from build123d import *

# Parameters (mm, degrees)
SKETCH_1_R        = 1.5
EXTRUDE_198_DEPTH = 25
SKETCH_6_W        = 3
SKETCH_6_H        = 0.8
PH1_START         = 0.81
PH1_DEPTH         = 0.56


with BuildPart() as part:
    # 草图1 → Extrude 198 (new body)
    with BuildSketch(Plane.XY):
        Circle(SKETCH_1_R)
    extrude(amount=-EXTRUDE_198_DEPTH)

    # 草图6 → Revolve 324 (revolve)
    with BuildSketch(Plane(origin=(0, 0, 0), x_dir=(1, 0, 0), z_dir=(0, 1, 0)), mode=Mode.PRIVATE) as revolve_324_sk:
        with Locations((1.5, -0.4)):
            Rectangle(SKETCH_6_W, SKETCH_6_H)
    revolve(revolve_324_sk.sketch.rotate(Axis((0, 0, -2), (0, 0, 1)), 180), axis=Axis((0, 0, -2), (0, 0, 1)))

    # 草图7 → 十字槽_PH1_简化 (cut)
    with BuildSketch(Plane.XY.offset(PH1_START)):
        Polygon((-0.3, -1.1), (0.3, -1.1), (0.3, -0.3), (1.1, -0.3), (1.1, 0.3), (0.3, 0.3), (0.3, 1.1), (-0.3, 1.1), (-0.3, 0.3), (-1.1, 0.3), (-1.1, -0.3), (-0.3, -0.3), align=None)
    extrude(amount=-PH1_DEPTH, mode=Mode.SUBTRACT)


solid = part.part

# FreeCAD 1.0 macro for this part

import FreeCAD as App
import Part
import Sketcher

V = App.Vector
Q = App.Units.Quantity


def add_polygon(sketch, points):
    """Adds a closed chain of lines whose ends are joined by coincident constraints."""
    first, n = sketch.GeometryCount, len(points)
    for a, b in zip(points, points[1:] + points[:1]):
        sketch.addGeometry(Part.LineSegment(App.Vector(*a, 0), App.Vector(*b, 0)), False)
    for i in range(n):
        sketch.addConstraint(Sketcher.Constraint("Coincident", first + i, 2, first + (i + 1) % n, 1))

doc = App.newDocument("Part")
body = doc.addObject("PartDesign::Body", "Body")

# Sketch on XY plane
sketch1 = doc.addObject("Sketcher::SketchObject", "Sketch")
body.addObject(sketch1)
sketch1.AttachmentSupport = (doc.XY_Plane, [""])
sketch1.MapMode = "FlatFace"
sketch1.addGeometry(Part.Circle(V(0, 0, 0), V(0, 0, 1), 1.5), False)
sketch1.addConstraint(Sketcher.Constraint("Coincident", 0, 3, -1, 1))
sketch1.addConstraint(Sketcher.Constraint("Diameter", 0, Q("3 mm")))
pad1 = doc.addObject("PartDesign::Pad", "Pad")
body.addObject(pad1)
pad1.Profile = sketch1
pad1.Length = 25
pad1.Reversed = True

# Sketch on XZ plane
sketch2 = doc.addObject("Sketcher::SketchObject", "Sketch001")
body.addObject(sketch2)
sketch2.AttachmentSupport = (doc.XZ_Plane, [""])
sketch2.MapMode = "FlatFace"
add_polygon(sketch2, [(0, 0), (0, 0.8), (3, 0.8), (3, 0)])  # lines 0-3
sketch2.addConstraint(Sketcher.Constraint("Vertical", 0))
sketch2.addConstraint(Sketcher.Constraint("Horizontal", 1))
sketch2.addConstraint(Sketcher.Constraint("Vertical", 2))
sketch2.addConstraint(Sketcher.Constraint("Horizontal", 3))
sketch2.addConstraint(Sketcher.Constraint("Coincident", 3, 2, -1, 1))
sketch2.addConstraint(Sketcher.Constraint("DistanceX", 1, 1, 1, 2, Q("3 mm")))
sketch2.addConstraint(Sketcher.Constraint("DistanceY", 0, 1, 0, 2, Q("0.8 mm")))
revolution = doc.addObject("PartDesign::Revolution", "Revolution")
body.addObject(revolution)
revolution.Profile = sketch2
revolution.ReferenceAxis = (sketch2, ["V_Axis"])
revolution.Angle = 360

# Sketch on XY plane
sketch3 = doc.addObject("Sketcher::SketchObject", "Sketch002")
body.addObject(sketch3)
sketch3.AttachmentSupport = (doc.XY_Plane, [""])
sketch3.MapMode = "FlatFace"
sketch3.AttachmentOffset = App.Placement(V(0, 0, 0.81), App.Rotation())
add_polygon(sketch3, [(-0.3, -1.1), (0.3, -1.1), (0.3, -0.3), (1.1, -0.3), (1.1, 0.3), (0.3, 0.3), (0.3, 1.1), (-0.3, 1.1), (-0.3, 0.3), (-1.1, 0.3), (-1.1, -0.3), (-0.3, -0.3)])  # lines 0-11
sketch3.addConstraint(Sketcher.Constraint("Horizontal", 0))
sketch3.addConstraint(Sketcher.Constraint("Vertical", 1))
sketch3.addConstraint(Sketcher.Constraint("Horizontal", 2))
sketch3.addConstraint(Sketcher.Constraint("Vertical", 3))
sketch3.addConstraint(Sketcher.Constraint("Horizontal", 4))
sketch3.addConstraint(Sketcher.Constraint("Vertical", 5))
sketch3.addConstraint(Sketcher.Constraint("Horizontal", 6))
sketch3.addConstraint(Sketcher.Constraint("Vertical", 7))
sketch3.addConstraint(Sketcher.Constraint("Horizontal", 8))
sketch3.addConstraint(Sketcher.Constraint("Vertical", 9))
sketch3.addConstraint(Sketcher.Constraint("Horizontal", 10))
sketch3.addConstraint(Sketcher.Constraint("Vertical", 11))
sketch3.addConstraint(Sketcher.Constraint("Symmetric", 0, 2, 6, 2, -1, 1))
sketch3.addConstraint(Sketcher.Constraint("Symmetric", 2, 2, 8, 2, -1, 1))
sketch3.addConstraint(Sketcher.Constraint("Symmetric", 4, 2, 10, 2, -1, 1))
sketch3.addConstraint(Sketcher.Constraint("Symmetric", 4, 2, 7, 2, -2))
sketch3.addConstraint(Sketcher.Constraint("Equal", 10, 1))
sketch3.addConstraint(Sketcher.Constraint("Equal", 6, 3))
sketch3.addConstraint(Sketcher.Constraint("DistanceX", 0, 1, 0, 2, Q("0.6 mm")))
sketch3.addConstraint(Sketcher.Constraint("DistanceX", 2, 1, 2, 2, Q("0.8 mm")))
pocket1 = doc.addObject("PartDesign::Pocket", "Pocket")
body.addObject(pocket1)
pocket1.Profile = sketch3
pocket1.Length = 0.56

doc.recompute()
